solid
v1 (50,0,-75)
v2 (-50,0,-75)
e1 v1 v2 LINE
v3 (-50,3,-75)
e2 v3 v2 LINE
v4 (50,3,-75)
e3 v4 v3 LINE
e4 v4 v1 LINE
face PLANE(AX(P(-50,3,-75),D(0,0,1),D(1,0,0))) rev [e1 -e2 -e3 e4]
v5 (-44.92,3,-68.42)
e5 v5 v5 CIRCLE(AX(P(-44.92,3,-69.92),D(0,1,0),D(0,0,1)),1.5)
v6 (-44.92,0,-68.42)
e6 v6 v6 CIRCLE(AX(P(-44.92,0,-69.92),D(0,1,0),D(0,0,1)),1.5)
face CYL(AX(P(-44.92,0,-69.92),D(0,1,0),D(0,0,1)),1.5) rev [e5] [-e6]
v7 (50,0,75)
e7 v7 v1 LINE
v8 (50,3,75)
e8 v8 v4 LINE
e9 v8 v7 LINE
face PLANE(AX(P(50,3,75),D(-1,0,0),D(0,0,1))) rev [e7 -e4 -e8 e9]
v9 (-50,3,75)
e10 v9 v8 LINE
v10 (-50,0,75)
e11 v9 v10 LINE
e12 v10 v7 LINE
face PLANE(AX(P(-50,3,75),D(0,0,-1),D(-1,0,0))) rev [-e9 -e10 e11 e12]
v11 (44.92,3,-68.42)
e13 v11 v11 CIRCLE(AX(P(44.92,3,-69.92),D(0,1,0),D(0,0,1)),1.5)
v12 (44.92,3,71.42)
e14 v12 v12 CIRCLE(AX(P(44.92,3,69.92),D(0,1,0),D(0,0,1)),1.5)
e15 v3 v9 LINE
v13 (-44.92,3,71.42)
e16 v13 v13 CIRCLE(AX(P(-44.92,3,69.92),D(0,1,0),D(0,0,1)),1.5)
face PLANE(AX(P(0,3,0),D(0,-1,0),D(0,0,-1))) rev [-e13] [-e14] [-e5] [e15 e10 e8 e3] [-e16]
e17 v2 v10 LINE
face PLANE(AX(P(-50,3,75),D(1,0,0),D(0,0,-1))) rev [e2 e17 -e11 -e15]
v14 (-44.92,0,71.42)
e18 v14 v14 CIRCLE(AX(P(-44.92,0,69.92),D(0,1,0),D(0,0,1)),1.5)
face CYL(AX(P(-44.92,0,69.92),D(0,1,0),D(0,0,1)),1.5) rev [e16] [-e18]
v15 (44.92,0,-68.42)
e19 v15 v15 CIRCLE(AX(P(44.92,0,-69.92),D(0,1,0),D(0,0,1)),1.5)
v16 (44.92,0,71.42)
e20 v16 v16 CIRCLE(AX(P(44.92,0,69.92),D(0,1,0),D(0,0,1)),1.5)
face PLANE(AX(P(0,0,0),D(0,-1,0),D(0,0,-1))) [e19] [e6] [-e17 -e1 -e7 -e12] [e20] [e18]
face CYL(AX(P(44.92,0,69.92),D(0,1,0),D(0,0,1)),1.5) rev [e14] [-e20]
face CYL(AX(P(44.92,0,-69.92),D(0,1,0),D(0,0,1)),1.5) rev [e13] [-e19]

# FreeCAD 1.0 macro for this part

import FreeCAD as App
import Part
import Sketcher


def add_polygon(sketch, points):
    """Adds a closed chain of lines whose ends are joined by coincident constraints."""
    first, n = sketch.GeometryCount, len(points)
    for a, b in zip(points, points[1:] + points[:1]):
        sketch.addGeometry(Part.LineSegment(App.Vector(*a, 0), App.Vector(*b, 0)), False)
    for i in range(n):
        sketch.addConstraint(Sketcher.Constraint("Coincident", first + i, 2, first + (i + 1) % n, 1))

doc = App.newDocument("Part")
body = doc.addObject("PartDesign::Body", "Body")

sketch1 = doc.addObject("Sketcher::SketchObject", "Sketch")
body.addObject(sketch1)
sketch1.AttachmentSupport = (doc.XZ_Plane, [""])
sketch1.MapMode = "FlatFace"
add_polygon(sketch1, [(-50, -75), (-50, 75), (50, 75), (50, -75)])
sketch1.addConstraint(Sketcher.Constraint("Vertical", 0))
sketch1.addConstraint(Sketcher.Constraint("Horizontal", 1))
sketch1.addConstraint(Sketcher.Constraint("Vertical", 2))
sketch1.addConstraint(Sketcher.Constraint("Horizontal", 3))
sketch1.addConstraint(Sketcher.Constraint("Symmetric", 0, 2, 2, 2, -1, 1))
sketch1.addConstraint(Sketcher.Constraint("DistanceX", 1, 1, 1, 2, 100.0))
sketch1.addConstraint(Sketcher.Constraint("DistanceY", 0, 1, 0, 2, 150.0))
pad1 = doc.addObject("PartDesign::Pad", "Pad")
body.addObject(pad1)
pad1.Profile = sketch1
pad1.Length = 3
pad1.Reversed = True

sketch2 = doc.addObject("Sketcher::SketchObject", "Sketch001")
body.addObject(sketch2)
sketch2.AttachmentSupport = (doc.XZ_Plane, [""])
sketch2.MapMode = "FlatFace"
sketch2.AttachmentOffset = App.Placement(App.Vector(0, 0, -3), App.Rotation())
sketch2.addGeometry(Part.Circle(App.Vector(-44.9, -69.9, 0), App.Vector(0, 0, 1), 1.5), False)
sketch2.addGeometry(Part.Circle(App.Vector(44.9, -69.9, 0), App.Vector(0, 0, 1), 1.5), False)
sketch2.addGeometry(Part.Circle(App.Vector(-44.9, 69.9, 0), App.Vector(0, 0, 1), 1.5), False)
sketch2.addGeometry(Part.Circle(App.Vector(44.9, 69.9, 0), App.Vector(0, 0, 1), 1.5), False)
sketch2.addConstraint(Sketcher.Constraint("Equal", 0, 1))
sketch2.addConstraint(Sketcher.Constraint("Equal", 1, 2))
sketch2.addConstraint(Sketcher.Constraint("Equal", 2, 3))
sketch2.addConstraint(Sketcher.Constraint("Symmetric", 1, 3, 2, 3, -1, 1))
sketch2.addConstraint(Sketcher.Constraint("Symmetric", 0, 3, 3, 3, -1, 1))
sketch2.addConstraint(Sketcher.Constraint("Symmetric", 0, 3, 1, 3, -2))
sketch2.addConstraint(Sketcher.Constraint("Diameter", 0, 3.0))
sketch2.addConstraint(Sketcher.Constraint("DistanceX", 0, 3, -1, 1, 44.92))
sketch2.addConstraint(Sketcher.Constraint("DistanceY", 0, 3, -1, 1, 69.92))
pocket1 = doc.addObject("PartDesign::Pocket", "Pocket")
body.addObject(pocket1)
pocket1.Profile = sketch2
pocket1.Length = 3
pocket1.Reversed = True

doc.recompute()
